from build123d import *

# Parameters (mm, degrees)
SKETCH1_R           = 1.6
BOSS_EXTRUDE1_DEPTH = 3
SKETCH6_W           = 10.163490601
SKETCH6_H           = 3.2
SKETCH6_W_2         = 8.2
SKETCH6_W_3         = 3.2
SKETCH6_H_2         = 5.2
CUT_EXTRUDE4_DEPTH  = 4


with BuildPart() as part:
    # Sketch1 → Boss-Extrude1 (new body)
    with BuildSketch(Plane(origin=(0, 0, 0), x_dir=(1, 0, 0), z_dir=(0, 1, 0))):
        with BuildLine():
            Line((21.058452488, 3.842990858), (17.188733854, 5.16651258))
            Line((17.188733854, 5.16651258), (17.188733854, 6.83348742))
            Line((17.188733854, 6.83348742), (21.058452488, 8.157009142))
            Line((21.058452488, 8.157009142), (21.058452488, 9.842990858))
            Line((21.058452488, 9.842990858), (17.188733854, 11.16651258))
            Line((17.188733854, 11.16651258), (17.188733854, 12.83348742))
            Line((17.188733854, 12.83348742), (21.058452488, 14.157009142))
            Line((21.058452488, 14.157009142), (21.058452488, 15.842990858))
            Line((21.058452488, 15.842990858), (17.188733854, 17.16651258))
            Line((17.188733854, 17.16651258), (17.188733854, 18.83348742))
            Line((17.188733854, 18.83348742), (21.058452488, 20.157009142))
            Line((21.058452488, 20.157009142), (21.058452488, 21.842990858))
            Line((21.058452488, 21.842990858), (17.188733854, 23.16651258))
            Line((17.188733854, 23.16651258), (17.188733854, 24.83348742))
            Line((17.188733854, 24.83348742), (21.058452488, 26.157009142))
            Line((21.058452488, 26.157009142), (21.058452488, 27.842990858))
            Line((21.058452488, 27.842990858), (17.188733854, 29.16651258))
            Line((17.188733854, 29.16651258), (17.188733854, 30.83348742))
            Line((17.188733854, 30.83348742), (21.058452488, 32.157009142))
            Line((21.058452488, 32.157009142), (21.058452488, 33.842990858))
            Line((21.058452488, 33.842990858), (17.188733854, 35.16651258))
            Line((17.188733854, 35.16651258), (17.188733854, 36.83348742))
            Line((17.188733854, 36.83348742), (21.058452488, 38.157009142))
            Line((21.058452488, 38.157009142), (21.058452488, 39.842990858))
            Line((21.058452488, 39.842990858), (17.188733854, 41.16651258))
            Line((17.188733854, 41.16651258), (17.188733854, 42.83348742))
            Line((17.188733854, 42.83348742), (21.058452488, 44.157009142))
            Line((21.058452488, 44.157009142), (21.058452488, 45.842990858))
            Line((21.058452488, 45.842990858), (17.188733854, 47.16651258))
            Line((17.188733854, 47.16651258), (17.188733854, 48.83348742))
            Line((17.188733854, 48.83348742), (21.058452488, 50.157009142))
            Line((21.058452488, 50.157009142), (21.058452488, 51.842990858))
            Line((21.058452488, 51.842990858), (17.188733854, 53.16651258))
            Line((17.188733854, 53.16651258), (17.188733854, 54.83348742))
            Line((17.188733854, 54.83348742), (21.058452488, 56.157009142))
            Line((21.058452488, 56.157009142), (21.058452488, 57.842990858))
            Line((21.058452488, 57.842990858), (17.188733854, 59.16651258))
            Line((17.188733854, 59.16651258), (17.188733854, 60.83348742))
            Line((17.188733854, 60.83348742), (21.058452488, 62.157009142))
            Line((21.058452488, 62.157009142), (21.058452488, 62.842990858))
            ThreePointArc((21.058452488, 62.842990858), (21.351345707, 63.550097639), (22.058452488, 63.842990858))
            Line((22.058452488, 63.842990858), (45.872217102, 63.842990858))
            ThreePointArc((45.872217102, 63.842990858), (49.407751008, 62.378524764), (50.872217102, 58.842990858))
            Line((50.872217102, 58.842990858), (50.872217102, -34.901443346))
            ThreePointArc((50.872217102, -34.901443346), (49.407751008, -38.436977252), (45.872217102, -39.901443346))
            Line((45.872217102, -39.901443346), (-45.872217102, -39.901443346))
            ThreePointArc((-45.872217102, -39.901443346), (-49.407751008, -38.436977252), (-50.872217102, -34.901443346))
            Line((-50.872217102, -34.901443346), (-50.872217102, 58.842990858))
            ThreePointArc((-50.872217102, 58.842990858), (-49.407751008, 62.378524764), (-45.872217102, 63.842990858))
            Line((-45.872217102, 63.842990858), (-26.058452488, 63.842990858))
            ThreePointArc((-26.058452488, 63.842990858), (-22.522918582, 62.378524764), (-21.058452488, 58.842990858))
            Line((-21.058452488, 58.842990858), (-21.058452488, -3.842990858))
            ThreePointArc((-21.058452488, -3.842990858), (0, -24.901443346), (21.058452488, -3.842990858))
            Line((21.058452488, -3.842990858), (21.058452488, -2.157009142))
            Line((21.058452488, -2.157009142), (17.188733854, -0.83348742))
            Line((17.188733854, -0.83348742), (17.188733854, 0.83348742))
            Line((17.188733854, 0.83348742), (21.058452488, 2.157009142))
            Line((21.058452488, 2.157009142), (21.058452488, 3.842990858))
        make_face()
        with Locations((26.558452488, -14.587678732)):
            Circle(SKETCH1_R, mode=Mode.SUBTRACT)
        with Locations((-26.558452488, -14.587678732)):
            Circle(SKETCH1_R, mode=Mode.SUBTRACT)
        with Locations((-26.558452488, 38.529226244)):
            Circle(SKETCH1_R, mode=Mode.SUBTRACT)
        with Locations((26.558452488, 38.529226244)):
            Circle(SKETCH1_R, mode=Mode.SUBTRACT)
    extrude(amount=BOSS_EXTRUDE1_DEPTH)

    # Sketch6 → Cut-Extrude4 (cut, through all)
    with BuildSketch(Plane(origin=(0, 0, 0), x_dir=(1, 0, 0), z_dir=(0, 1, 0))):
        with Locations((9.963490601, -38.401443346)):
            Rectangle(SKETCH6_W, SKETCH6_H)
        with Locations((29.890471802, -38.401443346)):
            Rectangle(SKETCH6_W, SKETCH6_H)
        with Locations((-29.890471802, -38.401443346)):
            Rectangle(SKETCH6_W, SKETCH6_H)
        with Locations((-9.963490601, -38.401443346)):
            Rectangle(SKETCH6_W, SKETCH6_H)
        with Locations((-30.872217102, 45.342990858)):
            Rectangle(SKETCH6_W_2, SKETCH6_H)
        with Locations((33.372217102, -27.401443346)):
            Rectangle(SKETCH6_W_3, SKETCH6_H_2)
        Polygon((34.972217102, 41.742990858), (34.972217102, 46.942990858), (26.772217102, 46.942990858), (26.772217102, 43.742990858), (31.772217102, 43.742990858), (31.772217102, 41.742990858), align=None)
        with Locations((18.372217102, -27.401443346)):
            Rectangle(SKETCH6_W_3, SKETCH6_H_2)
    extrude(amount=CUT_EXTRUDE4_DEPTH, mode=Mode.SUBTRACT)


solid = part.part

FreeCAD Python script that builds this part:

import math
import FreeCAD as App
import Part
import Sketcher
Q = App.Units.Quantity


def add_polygon(sketch, points):
    """Adds a closed chain of lines whose ends are joined by coincident constraints."""
    first, n = sketch.GeometryCount, len(points)
    for a, b in zip(points, points[1:] + points[:1]):
        sketch.addGeometry(Part.LineSegment(App.Vector(*a, 0), App.Vector(*b, 0)), False)
    for i in range(n):
        sketch.addConstraint(Sketcher.Constraint("Coincident", first + i, 2, first + (i + 1) % n, 1))

doc = App.newDocument("Part")
body = doc.addObject("PartDesign::Body", "Body")

# Sketch on XZ plane
sketch1 = body.newObject("Sketcher::SketchObject", "Sketch")
sketch1.AttachmentSupport = (doc.getObject("XZ_Plane"), [""])
sketch1.MapMode = "FlatFace"
sketch1.addGeometry(Part.LineSegment(App.Vector(17.2, -5.2, 0), App.Vector(21.1, -3.8, 0)), False)
sketch1.addGeometry(Part.LineSegment(App.Vector(21.1, -3.8, 0), App.Vector(21.1, -2.2, 0)), False)
sketch1.addGeometry(Part.LineSegment(App.Vector(21.1, -2.2, 0), App.Vector(17.2, -0.8, 0)), False)
sketch1.addGeometry(Part.LineSegment(App.Vector(17.2, -0.8, 0), App.Vector(17.2, 0.8, 0)), False)
sketch1.addGeometry(Part.LineSegment(App.Vector(17.2, 0.8, 0), App.Vector(21.1, 2.2, 0)), False)
sketch1.addGeometry(Part.LineSegment(App.Vector(21.1, 2.2, 0), App.Vector(21.1, 3.8, 0)), False)
sketch1.addGeometry(Part.ArcOfCircle(Part.Circle(App.Vector(0, 3.8, 0), App.Vector(0, 0, 1), 21.1), math.radians(0), math.radians(180)), False)
sketch1.addGeometry(Part.LineSegment(App.Vector(-21.1, 3.8, 0), App.Vector(-21.1, -58.8, 0)), False)
sketch1.addGeometry(Part.ArcOfCircle(Part.Circle(App.Vector(-26.1, -58.8, 0), App.Vector(0, 0, 1), 5), math.radians(-90), math.radians(0)), False)
sketch1.addGeometry(Part.LineSegment(App.Vector(-26.1, -63.8, 0), App.Vector(-45.9, -63.8, 0)), False)
sketch1.addGeometry(Part.ArcOfCircle(Part.Circle(App.Vector(-45.9, -58.8, 0), App.Vector(0, 0, 1), 5), math.radians(180), math.radians(270)), False)
sketch1.addGeometry(Part.LineSegment(App.Vector(-50.9, -58.8, 0), App.Vector(-50.9, 34.9, 0)), False)
sketch1.addGeometry(Part.ArcOfCircle(Part.Circle(App.Vector(-45.9, 34.9, 0), App.Vector(0, 0, 1), 5), math.radians(90), math.radians(180)), False)
sketch1.addGeometry(Part.LineSegment(App.Vector(-45.9, 39.9, 0), App.Vector(45.9, 39.9, 0)), False)
sketch1.addGeometry(Part.ArcOfCircle(Part.Circle(App.Vector(45.9, 34.9, 0), App.Vector(0, 0, 1), 5), math.radians(0), math.radians(90)), False)
sketch1.addGeometry(Part.LineSegment(App.Vector(50.9, 34.9, 0), App.Vector(50.9, -58.8, 0)), False)
sketch1.addGeometry(Part.ArcOfCircle(Part.Circle(App.Vector(45.9, -58.8, 0), App.Vector(0, 0, 1), 5), math.radians(-90), math.radians(0)), False)
sketch1.addGeometry(Part.LineSegment(App.Vector(45.9, -63.8, 0), App.Vector(22.1, -63.8, 0)), False)
sketch1.addGeometry(Part.ArcOfCircle(Part.Circle(App.Vector(22.1, -62.8, 0), App.Vector(0, 0, 1), 1), math.radians(-180), math.radians(-90)), False)
sketch1.addGeometry(Part.LineSegment(App.Vector(21.1, -62.8, 0), App.Vector(21.1, -62.2, 0)), False)
sketch1.addGeometry(Part.LineSegment(App.Vector(21.1, -62.2, 0), App.Vector(17.2, -60.8, 0)), False)
sketch1.addGeometry(Part.LineSegment(App.Vector(17.2, -60.8, 0), App.Vector(17.2, -59.2, 0)), False)
sketch1.addGeometry(Part.LineSegment(App.Vector(17.2, -59.2, 0), App.Vector(21.1, -57.8, 0)), False)
sketch1.addGeometry(Part.LineSegment(App.Vector(21.1, -57.8, 0), App.Vector(21.1, -56.2, 0)), False)
sketch1.addGeometry(Part.LineSegment(App.Vector(21.1, -56.2, 0), App.Vector(17.2, -54.8, 0)), False)
sketch1.addGeometry(Part.LineSegment(App.Vector(17.2, -54.8, 0), App.Vector(17.2, -53.2, 0)), False)
sketch1.addGeometry(Part.LineSegment(App.Vector(17.2, -53.2, 0), App.Vector(21.1, -51.8, 0)), False)
sketch1.addGeometry(Part.LineSegment(App.Vector(21.1, -51.8, 0), App.Vector(21.1, -50.2, 0)), False)
sketch1.addGeometry(Part.LineSegment(App.Vector(21.1, -50.2, 0), App.Vector(17.2, -48.8, 0)), False)
sketch1.addGeometry(Part.LineSegment(App.Vector(17.2, -48.8, 0), App.Vector(17.2, -47.2, 0)), False)
sketch1.addGeometry(Part.LineSegment(App.Vector(17.2, -47.2, 0), App.Vector(21.1, -45.8, 0)), False)
sketch1.addGeometry(Part.LineSegment(App.Vector(21.1, -45.8, 0), App.Vector(21.1, -44.2, 0)), False)
sketch1.addGeometry(Part.LineSegment(App.Vector(21.1, -44.2, 0), App.Vector(17.2, -42.8, 0)), False)
sketch1.addGeometry(Part.LineSegment(App.Vector(17.2, -42.8, 0), App.Vector(17.2, -41.2, 0)), False)
sketch1.addGeometry(Part.LineSegment(App.Vector(17.2, -41.2, 0), App.Vector(21.1, -39.8, 0)), False)
sketch1.addGeometry(Part.LineSegment(App.Vector(21.1, -39.8, 0), App.Vector(21.1, -38.2, 0)), False)
sketch1.addGeometry(Part.LineSegment(App.Vector(21.1, -38.2, 0), App.Vector(17.2, -36.8, 0)), False)
sketch1.addGeometry(Part.LineSegment(App.Vector(17.2, -36.8, 0), App.Vector(17.2, -35.2, 0)), False)
sketch1.addGeometry(Part.LineSegment(App.Vector(17.2, -35.2, 0), App.Vector(21.1, -33.8, 0)), False)
sketch1.addGeometry(Part.LineSegment(App.Vector(21.1, -33.8, 0), App.Vector(21.1, -32.2, 0)), False)
sketch1.addGeometry(Part.LineSegment(App.Vector(21.1, -32.2, 0), App.Vector(17.2, -30.8, 0)), False)
sketch1.addGeometry(Part.LineSegment(App.Vector(17.2, -30.8, 0), App.Vector(17.2, -29.2, 0)), False)
sketch1.addGeometry(Part.LineSegment(App.Vector(17.2, -29.2, 0), App.Vector(21.1, -27.8, 0)), False)
sketch1.addGeometry(Part.LineSegment(App.Vector(21.1, -27.8, 0), App.Vector(21.1, -26.2, 0)), False)
sketch1.addGeometry(Part.LineSegment(App.Vector(21.1, -26.2, 0), App.Vector(17.2, -24.8, 0)), False)
sketch1.addGeometry(Part.LineSegment(App.Vector(17.2, -24.8, 0), App.Vector(17.2, -23.2, 0)), False)
sketch1.addGeometry(Part.LineSegment(App.Vector(17.2, -23.2, 0), App.Vector(21.1, -21.8, 0)), False)
sketch1.addGeometry(Part.LineSegment(App.Vector(21.1, -21.8, 0), App.Vector(21.1, -20.2, 0)), False)
sketch1.addGeometry(Part.LineSegment(App.Vector(21.1, -20.2, 0), App.Vector(17.2, -18.8, 0)), False)
sketch1.addGeometry(Part.LineSegment(App.Vector(17.2, -18.8, 0), App.Vector(17.2, -17.2, 0)), False)
sketch1.addGeometry(Part.LineSegment(App.Vector(17.2, -17.2, 0), App.Vector(21.1, -15.8, 0)), False)
sketch1.addGeometry(Part.LineSegment(App.Vector(21.1, -15.8, 0), App.Vector(21.1, -14.2, 0)), False)
sketch1.addGeometry(Part.LineSegment(App.Vector(21.1, -14.2, 0), App.Vector(17.2, -12.8, 0)), False)
sketch1.addGeometry(Part.LineSegment(App.Vector(17.2, -12.8, 0), App.Vector(17.2, -11.2, 0)), False)
sketch1.addGeometry(Part.LineSegment(App.Vector(17.2, -11.2, 0), App.Vector(21.1, -9.8, 0)), False)
sketch1.addGeometry(Part.LineSegment(App.Vector(21.1, -9.8, 0), App.Vector(21.1, -8.2, 0)), False)
sketch1.addGeometry(Part.LineSegment(App.Vector(21.1, -8.2, 0), App.Vector(17.2, -6.8, 0)), False)
sketch1.addGeometry(Part.LineSegment(App.Vector(17.2, -6.8, 0), App.Vector(17.2, -5.2, 0)), False)
sketch1.addGeometry(Part.Circle(App.Vector(26.6, 14.6, 0), App.Vector(0, 0, 1), 1.6), False)
sketch1.addGeometry(Part.Circle(App.Vector(-26.6, 14.6, 0), App.Vector(0, 0, 1), 1.6), False)
sketch1.addGeometry(Part.Circle(App.Vector(26.6, -38.5, 0), App.Vector(0, 0, 1), 1.6), False)
sketch1.addGeometry(Part.Circle(App.Vector(-26.6, -38.5, 0), App.Vector(0, 0, 1), 1.6), False)
sketch1.addConstraint(Sketcher.Constraint("Coincident", 0, 2, 1, 1))
sketch1.addConstraint(Sketcher.Constraint("Coincident", 1, 2, 2, 1))
sketch1.addConstraint(Sketcher.Constraint("Coincident", 2, 2, 3, 1))
sketch1.addConstraint(Sketcher.Constraint("Coincident", 3, 2, 4, 1))
sketch1.addConstraint(Sketcher.Constraint("Coincident", 4, 2, 5, 1))
sketch1.addConstraint(Sketcher.Constraint("Tangent", 5, 2, 6, 1))
sketch1.addConstraint(Sketcher.Constraint("Tangent", 6, 2, 7, 1))
sketch1.addConstraint(Sketcher.Constraint("Tangent", 7, 2, 8, 2))
sketch1.addConstraint(Sketcher.Constraint("Tangent", 8, 1, 9, 1))
sketch1.addConstraint(Sketcher.Constraint("Tangent", 9, 2, 10, 2))
sketch1.addConstraint(Sketcher.Constraint("Tangent", 10, 1, 11, 1))
sketch1.addConstraint(Sketcher.Constraint("Tangent", 11, 2, 12, 2))
sketch1.addConstraint(Sketcher.Constraint("Tangent", 12, 1, 13, 1))
sketch1.addConstraint(Sketcher.Constraint("Tangent", 13, 2, 14, 2))
sketch1.addConstraint(Sketcher.Constraint("Tangent", 14, 1, 15, 1))
sketch1.addConstraint(Sketcher.Constraint("Tangent", 15, 2, 16, 2))
sketch1.addConstraint(Sketcher.Constraint("Tangent", 16, 1, 17, 1))
sketch1.addConstraint(Sketcher.Constraint("Tangent", 17, 2, 18, 2))
sketch1.addConstraint(Sketcher.Constraint("Tangent", 18, 1, 19, 1))
sketch1.addConstraint(Sketcher.Constraint("Coincident", 19, 2, 20, 1))
sketch1.addConstraint(Sketcher.Constraint("Coincident", 20, 2, 21, 1))
sketch1.addConstraint(Sketcher.Constraint("Coincident", 21, 2, 22, 1))
sketch1.addConstraint(Sketcher.Constraint("Coincident", 22, 2, 23, 1))
sketch1.addConstraint(Sketcher.Constraint("Coincident", 23, 2, 24, 1))
sketch1.addConstraint(Sketcher.Constraint("Coincident", 24, 2, 25, 1))
sketch1.addConstraint(Sketcher.Constraint("Coincident", 25, 2, 26, 1))
sketch1.addConstraint(Sketcher.Constraint("Coincident", 26, 2, 27, 1))
sketch1.addConstraint(Sketcher.Constraint("Coincident", 27, 2, 28, 1))
sketch1.addConstraint(Sketcher.Constraint("Coincident", 28, 2, 29, 1))
sketch1.addConstraint(Sketcher.Constraint("Coincident", 29, 2, 30, 1))
sketch1.addConstraint(Sketcher.Constraint("Coincident", 30, 2, 31, 1))
sketch1.addConstraint(Sketcher.Constraint("Coincident", 31, 2, 32, 1))
sketch1.addConstraint(Sketcher.Constraint("Coincident", 32, 2, 33, 1))
sketch1.addConstraint(Sketcher.Constraint("Coincident", 33, 2, 34, 1))
sketch1.addConstraint(Sketcher.Constraint("Coincident", 34, 2, 35, 1))
sketch1.addConstraint(Sketcher.Constraint("Coincident", 35, 2, 36, 1))
sketch1.addConstraint(Sketcher.Constraint("Coincident", 36, 2, 37, 1))
sketch1.addConstraint(Sketcher.Constraint("Coincident", 37, 2, 38, 1))
sketch1.addConstraint(Sketcher.Constraint("Coincident", 38, 2, 39, 1))
sketch1.addConstraint(Sketcher.Constraint("Coincident", 39, 2, 40, 1))
sketch1.addConstraint(Sketcher.Constraint("Coincident", 40, 2, 41, 1))
sketch1.addConstraint(Sketcher.Constraint("Coincident", 41, 2, 42, 1))
sketch1.addConstraint(Sketcher.Constraint("Coincident", 42, 2, 43, 1))
sketch1.addConstraint(Sketcher.Constraint("Coincident", 43, 2, 44, 1))
sketch1.addConstraint(Sketcher.Constraint("Coincident", 44, 2, 45, 1))
sketch1.addConstraint(Sketcher.Constraint("Coincident", 45, 2, 46, 1))
sketch1.addConstraint(Sketcher.Constraint("Coincident", 46, 2, 47, 1))
sketch1.addConstraint(Sketcher.Constraint("Coincident", 47, 2, 48, 1))
sketch1.addConstraint(Sketcher.Constraint("Coincident", 48, 2, 49, 1))
sketch1.addConstraint(Sketcher.Constraint("Coincident", 49, 2, 50, 1))
sketch1.addConstraint(Sketcher.Constraint("Coincident", 50, 2, 51, 1))
sketch1.addConstraint(Sketcher.Constraint("Coincident", 51, 2, 52, 1))
sketch1.addConstraint(Sketcher.Constraint("Coincident", 52, 2, 53, 1))
sketch1.addConstraint(Sketcher.Constraint("Coincident", 53, 2, 54, 1))
sketch1.addConstraint(Sketcher.Constraint("Coincident", 54, 2, 55, 1))
sketch1.addConstraint(Sketcher.Constraint("Coincident", 55, 2, 56, 1))
sketch1.addConstraint(Sketcher.Constraint("Coincident", 56, 2, 57, 1))
sketch1.addConstraint(Sketcher.Constraint("Coincident", 57, 2, 0, 1))
sketch1.addConstraint(Sketcher.Constraint("Vertical", 1))
sketch1.addConstraint(Sketcher.Constraint("Vertical", 3))
sketch1.addConstraint(Sketcher.Constraint("Vertical", 5))
sketch1.addConstraint(Sketcher.Constraint("Vertical", 7))
sketch1.addConstraint(Sketcher.Constraint("Horizontal", 9))
sketch1.addConstraint(Sketcher.Constraint("Vertical", 11))
sketch1.addConstraint(Sketcher.Constraint("Horizontal", 13))
sketch1.addConstraint(Sketcher.Constraint("Vertical", 15))
sketch1.addConstraint(Sketcher.Constraint("Horizontal", 17))
sketch1.addConstraint(Sketcher.Constraint("Vertical", 19))
sketch1.addConstraint(Sketcher.Constraint("Vertical", 21))
sketch1.addConstraint(Sketcher.Constraint("Vertical", 23))
sketch1.addConstraint(Sketcher.Constraint("Vertical", 25))
sketch1.addConstraint(Sketcher.Constraint("Vertical", 27))
sketch1.addConstraint(Sketcher.Constraint("Vertical", 29))
sketch1.addConstraint(Sketcher.Constraint("Vertical", 31))
sketch1.addConstraint(Sketcher.Constraint("Vertical", 33))
sketch1.addConstraint(Sketcher.Constraint("Vertical", 35))
sketch1.addConstraint(Sketcher.Constraint("Vertical", 37))
sketch1.addConstraint(Sketcher.Constraint("Vertical", 39))
sketch1.addConstraint(Sketcher.Constraint("Vertical", 41))
sketch1.addConstraint(Sketcher.Constraint("Vertical", 43))
sketch1.addConstraint(Sketcher.Constraint("Vertical", 45))
sketch1.addConstraint(Sketcher.Constraint("Vertical", 47))
sketch1.addConstraint(Sketcher.Constraint("Vertical", 49))
sketch1.addConstraint(Sketcher.Constraint("Vertical", 51))
sketch1.addConstraint(Sketcher.Constraint("Vertical", 53))
sketch1.addConstraint(Sketcher.Constraint("Vertical", 55))
sketch1.addConstraint(Sketcher.Constraint("Vertical", 57))
sketch1.addConstraint(Sketcher.Constraint("Equal", 8, 10))
sketch1.addConstraint(Sketcher.Constraint("Equal", 10, 12))
sketch1.addConstraint(Sketcher.Constraint("Equal", 12, 14))
sketch1.addConstraint(Sketcher.Constraint("Equal", 14, 16))
sketch1.addConstraint(Sketcher.Constraint("Equal", 58, 59))
sketch1.addConstraint(Sketcher.Constraint("Equal", 59, 60))
sketch1.addConstraint(Sketcher.Constraint("Equal", 60, 61))
sketch1.addConstraint(Sketcher.Constraint("Symmetric", 0, 2, 6, 2, -1, 1))
sketch1.addConstraint(Sketcher.Constraint("Symmetric", 10, 3, 16, 3, -2))
sketch1.addConstraint(Sketcher.Constraint("Symmetric", 58, 3, 59, 3, -2))
sketch1.addConstraint(Sketcher.Constraint("Symmetric", 60, 3, 61, 3, -2))
sketch1.addConstraint(Sketcher.Constraint("Symmetric", 1, 2, 4, 2, -1))
sketch1.addConstraint(Sketcher.Constraint("Parallel", 0, 4))
sketch1.addConstraint(Sketcher.Constraint("Parallel", 2, 20))
sketch1.addConstraint(Sketcher.Constraint("Parallel", 4, 22))
sketch1.addConstraint(Sketcher.Constraint("Parallel", 20, 24))
sketch1.addConstraint(Sketcher.Constraint("Parallel", 22, 26))
sketch1.addConstraint(Sketcher.Constraint("Parallel", 24, 28))
sketch1.addConstraint(Sketcher.Constraint("Parallel", 26, 30))
sketch1.addConstraint(Sketcher.Constraint("Parallel", 28, 32))
sketch1.addConstraint(Sketcher.Constraint("Parallel", 30, 34))
sketch1.addConstraint(Sketcher.Constraint("Parallel", 32, 36))
sketch1.addConstraint(Sketcher.Constraint("Parallel", 34, 38))
sketch1.addConstraint(Sketcher.Constraint("Parallel", 36, 40))
sketch1.addConstraint(Sketcher.Constraint("Parallel", 38, 42))
sketch1.addConstraint(Sketcher.Constraint("Parallel", 40, 44))
sketch1.addConstraint(Sketcher.Constraint("Parallel", 42, 46))
sketch1.addConstraint(Sketcher.Constraint("Parallel", 44, 48))
sketch1.addConstraint(Sketcher.Constraint("Parallel", 46, 50))
sketch1.addConstraint(Sketcher.Constraint("Parallel", 48, 52))
sketch1.addConstraint(Sketcher.Constraint("Parallel", 50, 54))
sketch1.addConstraint(Sketcher.Constraint("Parallel", 52, 56))
sketch1.addConstraint(Sketcher.Constraint("Vertical", 58, 3, 60, 3))
sketch1.addConstraint(Sketcher.Constraint("Vertical", 5, 2, 18, 1))
sketch1.addConstraint(Sketcher.Constraint("Vertical", 3, 2, 20, 2))
sketch1.addConstraint(Sketcher.Constraint("Vertical", 19, 2, 22, 2))
sketch1.addConstraint(Sketcher.Constraint("Vertical", 21, 2, 24, 2))
sketch1.addConstraint(Sketcher.Constraint("Vertical", 23, 2, 26, 2))
sketch1.addConstraint(Sketcher.Constraint("Vertical", 25, 2, 28, 2))
sketch1.addConstraint(Sketcher.Constraint("Vertical", 27, 2, 30, 2))
sketch1.addConstraint(Sketcher.Constraint("Vertical", 29, 2, 32, 2))
sketch1.addConstraint(Sketcher.Constraint("Vertical", 31, 2, 34, 2))
sketch1.addConstraint(Sketcher.Constraint("Vertical", 33, 2, 36, 2))
sketch1.addConstraint(Sketcher.Constraint("Vertical", 35, 2, 38, 2))
sketch1.addConstraint(Sketcher.Constraint("Vertical", 37, 2, 40, 2))
sketch1.addConstraint(Sketcher.Constraint("Vertical", 39, 2, 42, 2))
sketch1.addConstraint(Sketcher.Constraint("Vertical", 41, 2, 44, 2))
sketch1.addConstraint(Sketcher.Constraint("Vertical", 43, 2, 46, 2))
sketch1.addConstraint(Sketcher.Constraint("Vertical", 45, 2, 48, 2))
sketch1.addConstraint(Sketcher.Constraint("Vertical", 47, 2, 50, 2))
sketch1.addConstraint(Sketcher.Constraint("Vertical", 49, 2, 52, 2))
sketch1.addConstraint(Sketcher.Constraint("Vertical", 51, 2, 54, 2))
sketch1.addConstraint(Sketcher.Constraint("Vertical", 53, 2, 56, 2))
sketch1.addConstraint(Sketcher.Constraint("Equal", 3, 21))
sketch1.addConstraint(Sketcher.Constraint("Equal", 5, 23))
sketch1.addConstraint(Sketcher.Constraint("Equal", 21, 25))
sketch1.addConstraint(Sketcher.Constraint("Equal", 23, 27))
sketch1.addConstraint(Sketcher.Constraint("Equal", 25, 29))
sketch1.addConstraint(Sketcher.Constraint("Equal", 27, 31))
sketch1.addConstraint(Sketcher.Constraint("Equal", 29, 33))
sketch1.addConstraint(Sketcher.Constraint("Equal", 31, 35))
sketch1.addConstraint(Sketcher.Constraint("Equal", 33, 37))
sketch1.addConstraint(Sketcher.Constraint("Equal", 35, 39))
sketch1.addConstraint(Sketcher.Constraint("Equal", 37, 41))
sketch1.addConstraint(Sketcher.Constraint("Equal", 39, 43))
sketch1.addConstraint(Sketcher.Constraint("Equal", 41, 45))
sketch1.addConstraint(Sketcher.Constraint("Equal", 43, 47))
sketch1.addConstraint(Sketcher.Constraint("Equal", 45, 49))
sketch1.addConstraint(Sketcher.Constraint("Equal", 47, 51))
sketch1.addConstraint(Sketcher.Constraint("Equal", 49, 53))
sketch1.addConstraint(Sketcher.Constraint("Equal", 51, 55))
sketch1.addConstraint(Sketcher.Constraint("Equal", 53, 57))
sketch1.addConstraint(Sketcher.Constraint("Equal", 0, 2))
sketch1.addConstraint(Sketcher.Constraint("Radius", 8, Q("5 mm")))
sketch1.addConstraint(Sketcher.Constraint("Radius", 18, Q("1 mm")))
sketch1.addConstraint(Sketcher.Constraint("Diameter", 58, Q("3.2 mm")))
sketch1.addConstraint(Sketcher.Constraint("Radius", 6, Q("21.058452 mm")))
sketch1.addConstraint(Sketcher.Constraint("DistanceY", 1, 1, 1, 2, Q("1.685982 mm")))
sketch1.addConstraint(Sketcher.Constraint("DistanceY", 7, 2, 7, 1, Q("62.685982 mm")))
sketch1.addConstraint(Sketcher.Constraint("DistanceY", 19, 1, 19, 2, Q("0.685982 mm")))
sketch1.addConstraint(Sketcher.Constraint("DistanceX", 9, 2, 9, 1, Q("19.813765 mm")))
sketch1.addConstraint(Sketcher.Constraint("DistanceY", 3, 1, 3, 2, Q("1.666975 mm")))
sketch1.addConstraint(Sketcher.Constraint("DistanceY", 11, 1, 11, 2, Q("93.744434 mm")))
sketch1.addConstraint(Sketcher.Constraint("DistanceY", -1, 1, 58, 3, Q("14.587679 mm")))
sketch1.addConstraint(Sketcher.Constraint("Distance", 0, Q("4.089796 mm")))
sketch1.addConstraint(Sketcher.Constraint("DistanceX", -1, 1, 58, 3, Q("26.558452 mm")))
sketch1.addConstraint(Sketcher.Constraint("DistanceY", 60, 3, -1, 1, Q("38.529226 mm")))
pad1 = body.newObject("PartDesign::Pad", "Pad")
pad1.Profile = sketch1
pad1.Length = 3
pad1.Reversed = True

# Sketch on XZ plane
sketch2 = body.newObject("Sketcher::SketchObject", "Sketch001")
sketch2.AttachmentSupport = (doc.getObject("XZ_Plane"), [""])
sketch2.MapMode = "FlatFace"
add_polygon(sketch2, [(4.9, 36.8), (4.9, 40), (15, 40), (15, 36.8)])  # lines 0-3
add_polygon(sketch2, [(24.8, 36.8), (24.8, 40), (35, 40), (35, 36.8)])  # lines 4-7
add_polygon(sketch2, [(-35, 36.8), (-35, 40), (-24.8, 40), (-24.8, 36.8)])  # lines 8-11
add_polygon(sketch2, [(-15, 36.8), (-15, 40), (-4.9, 40), (-4.9, 36.8)])  # lines 12-15
add_polygon(sketch2, [(-35, -46.9), (-35, -43.7), (-26.8, -43.7), (-26.8, -46.9)])  # lines 16-19
add_polygon(sketch2, [(31.8, 24.8), (31.8, 30), (35, 30), (35, 24.8)])  # lines 20-23
add_polygon(sketch2, [(35, -41.7), (35, -46.9), (26.8, -46.9), (26.8, -43.7), (31.8, -43.7), (31.8, -41.7)])  # lines 24-29
add_polygon(sketch2, [(16.8, 24.8), (16.8, 30), (20, 30), (20, 24.8)])  # lines 30-33
sketch2.addConstraint(Sketcher.Constraint("Vertical", 0))
sketch2.addConstraint(Sketcher.Constraint("Horizontal", 1))
sketch2.addConstraint(Sketcher.Constraint("Vertical", 2))
sketch2.addConstraint(Sketcher.Constraint("Horizontal", 3))
sketch2.addConstraint(Sketcher.Constraint("Vertical", 4))
sketch2.addConstraint(Sketcher.Constraint("Horizontal", 5))
sketch2.addConstraint(Sketcher.Constraint("Vertical", 6))
sketch2.addConstraint(Sketcher.Constraint("Horizontal", 7))
sketch2.addConstraint(Sketcher.Constraint("Vertical", 8))
sketch2.addConstraint(Sketcher.Constraint("Horizontal", 9))
sketch2.addConstraint(Sketcher.Constraint("Vertical", 10))
sketch2.addConstraint(Sketcher.Constraint("Horizontal", 11))
sketch2.addConstraint(Sketcher.Constraint("Vertical", 12))
sketch2.addConstraint(Sketcher.Constraint("Horizontal", 13))
sketch2.addConstraint(Sketcher.Constraint("Vertical", 14))
sketch2.addConstraint(Sketcher.Constraint("Horizontal", 15))
sketch2.addConstraint(Sketcher.Constraint("Vertical", 16))
sketch2.addConstraint(Sketcher.Constraint("Horizontal", 17))
sketch2.addConstraint(Sketcher.Constraint("Vertical", 18))
sketch2.addConstraint(Sketcher.Constraint("Horizontal", 19))
sketch2.addConstraint(Sketcher.Constraint("Vertical", 20))
sketch2.addConstraint(Sketcher.Constraint("Horizontal", 21))
sketch2.addConstraint(Sketcher.Constraint("Vertical", 22))
sketch2.addConstraint(Sketcher.Constraint("Horizontal", 23))
sketch2.addConstraint(Sketcher.Constraint("Vertical", 24))
sketch2.addConstraint(Sketcher.Constraint("Horizontal", 25))
sketch2.addConstraint(Sketcher.Constraint("Vertical", 26))
sketch2.addConstraint(Sketcher.Constraint("Horizontal", 27))
sketch2.addConstraint(Sketcher.Constraint("Vertical", 28))
sketch2.addConstraint(Sketcher.Constraint("Horizontal", 29))
sketch2.addConstraint(Sketcher.Constraint("Vertical", 30))
sketch2.addConstraint(Sketcher.Constraint("Horizontal", 31))
sketch2.addConstraint(Sketcher.Constraint("Vertical", 32))
sketch2.addConstraint(Sketcher.Constraint("Horizontal", 33))
sketch2.addConstraint(Sketcher.Constraint("Symmetric", 5, 2, 8, 2, -2))
sketch2.addConstraint(Sketcher.Constraint("Symmetric", 7, 2, 10, 2, -2))
sketch2.addConstraint(Sketcher.Constraint("Symmetric", 1, 2, 12, 2, -2))
sketch2.addConstraint(Sketcher.Constraint("Symmetric", 3, 2, 14, 2, -2))
sketch2.addConstraint(Sketcher.Constraint("Symmetric", 19, 2, 24, 2, -2))
sketch2.addConstraint(Sketcher.Constraint("Symmetric", 17, 2, 26, 2, -2))
sketch2.addConstraint(Sketcher.Constraint("Horizontal", 1, 2, 4, 2))
sketch2.addConstraint(Sketcher.Constraint("Horizontal", 3, 2, 6, 2))
sketch2.addConstraint(Sketcher.Constraint("Horizontal", 21, 2, 30, 2))
sketch2.addConstraint(Sketcher.Constraint("Horizontal", 23, 2, 32, 2))
sketch2.addConstraint(Sketcher.Constraint("Vertical", 11, 2, 16, 2))
sketch2.addConstraint(Sketcher.Constraint("Vertical", 6, 2, 21, 2))
sketch2.addConstraint(Sketcher.Constraint("Vertical", 23, 2, 27, 2))
sketch2.addConstraint(Sketcher.Constraint("Equal", 3, 5))
sketch2.addConstraint(Sketcher.Constraint("Equal", 29, 31))
sketch2.addConstraint(Sketcher.Constraint("Equal", 33, 0))
sketch2.addConstraint(Sketcher.Constraint("Equal", 14, 16))
sketch2.addConstraint(Sketcher.Constraint("Equal", 22, 24))
sketch2.addConstraint(Sketcher.Constraint("DistanceX", 27, 1, 27, 2, Q("5 mm")))
sketch2.addConstraint(Sketcher.Constraint("DistanceY", 28, 1, 28, 2, Q("2 mm")))
sketch2.addConstraint(Sketcher.Constraint("DistanceX", 17, 1, 17, 2, Q("8.2 mm")))
sketch2.addConstraint(Sketcher.Constraint("DistanceY", 20, 2, 5, 2, Q("10 mm")))
sketch2.addConstraint(Sketcher.Constraint("DistanceX", 32, 2, 23, 2, Q("11.8 mm")))
sketch2.addConstraint(Sketcher.Constraint("DistanceX", 1, 1, 1, 2, Q("10.163491 mm")))
sketch2.addConstraint(Sketcher.Constraint("DistanceY", 16, 2, -1, 1, Q("43.742991 mm")))
sketch2.addConstraint(Sketcher.Constraint("DistanceX", 1, 2, 4, 2, Q("9.763491 mm")))
sketch2.addConstraint(Sketcher.Constraint("DistanceX", 9, 2, 0, 2, Q("29.690472 mm")))
sketch2.addConstraint(Sketcher.Constraint("DistanceY", -1, 1, 0, 2, Q("40.001443 mm")))
pocket1 = body.newObject("PartDesign::Pocket", "Pocket")
pocket1.Profile = sketch2
pocket1.Type = "ThroughAll"

doc.recompute()
